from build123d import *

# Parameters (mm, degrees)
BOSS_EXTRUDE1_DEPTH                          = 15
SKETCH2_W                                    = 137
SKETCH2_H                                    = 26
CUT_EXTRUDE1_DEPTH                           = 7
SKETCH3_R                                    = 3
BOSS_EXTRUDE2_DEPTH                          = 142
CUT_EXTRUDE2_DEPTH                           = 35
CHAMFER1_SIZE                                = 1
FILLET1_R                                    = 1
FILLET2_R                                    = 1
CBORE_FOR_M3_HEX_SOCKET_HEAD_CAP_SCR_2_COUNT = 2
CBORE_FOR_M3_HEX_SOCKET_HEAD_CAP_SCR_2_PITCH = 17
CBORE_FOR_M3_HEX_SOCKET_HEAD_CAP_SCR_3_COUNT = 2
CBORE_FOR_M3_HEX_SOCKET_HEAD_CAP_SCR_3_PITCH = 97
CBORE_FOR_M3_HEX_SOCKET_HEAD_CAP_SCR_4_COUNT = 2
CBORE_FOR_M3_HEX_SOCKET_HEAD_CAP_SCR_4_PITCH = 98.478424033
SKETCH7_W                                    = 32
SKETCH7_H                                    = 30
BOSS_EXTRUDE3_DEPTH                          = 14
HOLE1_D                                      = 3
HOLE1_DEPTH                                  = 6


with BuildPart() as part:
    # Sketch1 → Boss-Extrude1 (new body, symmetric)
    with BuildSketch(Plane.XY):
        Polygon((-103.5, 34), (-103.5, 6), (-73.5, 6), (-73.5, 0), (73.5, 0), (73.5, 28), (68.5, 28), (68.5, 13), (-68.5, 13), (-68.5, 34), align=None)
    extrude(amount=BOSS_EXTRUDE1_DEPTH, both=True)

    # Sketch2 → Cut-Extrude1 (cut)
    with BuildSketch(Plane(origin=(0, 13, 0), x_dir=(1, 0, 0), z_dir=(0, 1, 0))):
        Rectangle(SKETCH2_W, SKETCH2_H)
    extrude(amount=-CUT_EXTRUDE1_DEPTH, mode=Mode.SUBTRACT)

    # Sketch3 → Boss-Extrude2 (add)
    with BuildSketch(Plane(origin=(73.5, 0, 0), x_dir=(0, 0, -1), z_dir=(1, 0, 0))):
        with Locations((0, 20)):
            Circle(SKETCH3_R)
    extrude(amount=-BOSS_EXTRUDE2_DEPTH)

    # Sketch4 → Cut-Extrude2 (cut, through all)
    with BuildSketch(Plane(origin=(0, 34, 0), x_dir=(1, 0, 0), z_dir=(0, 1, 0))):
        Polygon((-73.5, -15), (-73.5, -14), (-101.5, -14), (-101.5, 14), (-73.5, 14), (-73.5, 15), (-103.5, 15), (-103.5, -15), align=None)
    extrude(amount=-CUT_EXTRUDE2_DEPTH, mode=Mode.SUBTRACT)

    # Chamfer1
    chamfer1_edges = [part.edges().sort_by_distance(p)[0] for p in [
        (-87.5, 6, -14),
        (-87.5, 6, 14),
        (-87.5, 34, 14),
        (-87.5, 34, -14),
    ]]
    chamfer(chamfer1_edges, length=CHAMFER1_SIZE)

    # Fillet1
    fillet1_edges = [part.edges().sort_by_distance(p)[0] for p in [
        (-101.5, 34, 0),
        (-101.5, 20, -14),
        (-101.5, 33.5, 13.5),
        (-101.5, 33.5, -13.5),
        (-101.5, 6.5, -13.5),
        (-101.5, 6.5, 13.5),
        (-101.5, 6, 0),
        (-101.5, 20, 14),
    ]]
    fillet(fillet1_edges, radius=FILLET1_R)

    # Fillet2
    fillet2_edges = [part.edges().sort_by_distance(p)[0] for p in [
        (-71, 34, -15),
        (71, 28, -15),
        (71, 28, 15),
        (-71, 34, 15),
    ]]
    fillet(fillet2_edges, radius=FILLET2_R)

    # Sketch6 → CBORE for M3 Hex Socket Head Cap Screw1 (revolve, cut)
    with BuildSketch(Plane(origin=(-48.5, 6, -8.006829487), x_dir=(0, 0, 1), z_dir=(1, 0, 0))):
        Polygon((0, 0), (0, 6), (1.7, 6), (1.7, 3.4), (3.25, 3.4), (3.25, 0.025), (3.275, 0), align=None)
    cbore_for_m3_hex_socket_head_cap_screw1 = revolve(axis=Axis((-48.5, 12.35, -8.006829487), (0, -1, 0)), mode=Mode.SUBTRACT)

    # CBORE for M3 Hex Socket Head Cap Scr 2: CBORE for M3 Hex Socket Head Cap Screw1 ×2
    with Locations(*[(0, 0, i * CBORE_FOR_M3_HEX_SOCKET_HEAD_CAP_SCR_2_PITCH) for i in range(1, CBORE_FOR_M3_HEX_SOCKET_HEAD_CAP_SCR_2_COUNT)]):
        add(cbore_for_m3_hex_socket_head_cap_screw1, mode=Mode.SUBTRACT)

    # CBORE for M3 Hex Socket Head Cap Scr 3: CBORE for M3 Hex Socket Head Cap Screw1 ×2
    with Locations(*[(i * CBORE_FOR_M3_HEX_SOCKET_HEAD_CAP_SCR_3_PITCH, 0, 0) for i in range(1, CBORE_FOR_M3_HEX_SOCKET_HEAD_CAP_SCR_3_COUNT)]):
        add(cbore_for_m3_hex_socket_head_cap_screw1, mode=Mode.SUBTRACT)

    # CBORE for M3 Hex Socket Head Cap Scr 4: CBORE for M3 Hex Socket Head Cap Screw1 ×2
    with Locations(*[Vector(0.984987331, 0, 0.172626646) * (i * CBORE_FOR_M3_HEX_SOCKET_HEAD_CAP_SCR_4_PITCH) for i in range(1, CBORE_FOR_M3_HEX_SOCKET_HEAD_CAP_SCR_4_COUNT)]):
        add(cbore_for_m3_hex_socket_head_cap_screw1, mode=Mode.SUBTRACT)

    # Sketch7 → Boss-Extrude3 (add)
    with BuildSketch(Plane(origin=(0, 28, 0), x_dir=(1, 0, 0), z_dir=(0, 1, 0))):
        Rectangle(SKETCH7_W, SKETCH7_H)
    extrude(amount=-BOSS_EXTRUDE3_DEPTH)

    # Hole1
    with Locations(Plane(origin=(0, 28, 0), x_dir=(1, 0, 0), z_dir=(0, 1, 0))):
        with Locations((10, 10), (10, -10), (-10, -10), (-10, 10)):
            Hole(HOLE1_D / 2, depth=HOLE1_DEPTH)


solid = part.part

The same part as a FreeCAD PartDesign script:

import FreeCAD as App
import Part
import Sketcher
from FreeCAD import Vector
Q = App.Units.Quantity


def edges_at(feature, points):
    """Names of the edges that pass closest to the given points."""
    edges = feature.Shape.Edges
    near = lambda p: min(range(len(edges)), key=lambda i: edges[i].distToShape(Part.Vertex(*p))[0])
    return sorted({f"Edge{near(p) + 1}" for p in points})

doc = App.newDocument("Part")
body = doc.addObject("PartDesign::Body", "Body")

sketch1 = doc.addObject("Sketcher::SketchObject", "Sketch")
body.addObject(sketch1)
sketch1.AttachmentSupport = (doc.XY_Plane, [""])
sketch1.MapMode = "FlatFace"
sketch1.addGeometry([
    Part.LineSegment(Vector(-104, 34, 0), Vector(-104, 6, 0)),
    Part.LineSegment(Vector(-104, 6, 0), Vector(-74, 6, 0)),
    Part.LineSegment(Vector(-74, 6, 0), Vector(-74, 0, 0)),
    Part.LineSegment(Vector(-74, 0, 0), Vector(74, 0, 0)),
    Part.LineSegment(Vector(74, 0, 0), Vector(74, 28, 0)),
    Part.LineSegment(Vector(74, 28, 0), Vector(68, 28, 0)),
    Part.LineSegment(Vector(68, 28, 0), Vector(68, 13, 0)),
    Part.LineSegment(Vector(68, 13, 0), Vector(-68, 13, 0)),
    Part.LineSegment(Vector(-68, 13, 0), Vector(-68, 34, 0)),
    Part.LineSegment(Vector(-68, 34, 0), Vector(-104, 34, 0)),
], False)
sketch1.addConstraint([
    Sketcher.Constraint("Coincident", 0, 2, 1, 1),
    Sketcher.Constraint("Coincident", 1, 2, 2, 1),
    Sketcher.Constraint("Coincident", 2, 2, 3, 1),
    Sketcher.Constraint("Coincident", 3, 2, 4, 1),
    Sketcher.Constraint("Coincident", 4, 2, 5, 1),
    Sketcher.Constraint("Coincident", 5, 2, 6, 1),
    Sketcher.Constraint("Coincident", 6, 2, 7, 1),
    Sketcher.Constraint("Coincident", 7, 2, 8, 1),
    Sketcher.Constraint("Coincident", 8, 2, 9, 1),
    Sketcher.Constraint("Coincident", 9, 2, 0, 1),
    Sketcher.Constraint("Vertical", 0),
    Sketcher.Constraint("Horizontal", 1),
    Sketcher.Constraint("Vertical", 2),
    Sketcher.Constraint("Horizontal", 3),
    Sketcher.Constraint("Vertical", 4),
    Sketcher.Constraint("Horizontal", 5),
    Sketcher.Constraint("Vertical", 6),
    Sketcher.Constraint("Horizontal", 7),
    Sketcher.Constraint("Vertical", 8),
    Sketcher.Constraint("Horizontal", 9),
    Sketcher.Constraint("Symmetric", 2, 2, 3, 2, -1, 1),
    Sketcher.Constraint("Equal", 0, 4),
    Sketcher.Constraint("DistanceX", 1, 1, 1, 2, Q("30 mm")),
    Sketcher.Constraint("DistanceX", 3, 1, 3, 2, Q("147 mm")),
    Sketcher.Constraint("DistanceX", 5, 2, 5, 1, Q("5 mm")),
    Sketcher.Constraint("DistanceX", 7, 2, 7, 1, Q("137 mm")),
    Sketcher.Constraint("DistanceY", 0, 2, 0, 1, Q("28 mm")),
    Sketcher.Constraint("DistanceY", 2, 2, 2, 1, Q("6 mm")),
    Sketcher.Constraint("DistanceY", 6, 2, 6, 1, Q("15 mm")),
])
pad1 = doc.addObject("PartDesign::Pad", "Pad")
body.addObject(pad1)
pad1.Profile = sketch1
pad1.Length = 30
pad1.Midplane = True

sketch2 = doc.addObject("Sketcher::SketchObject", "Sketch001")
body.addObject(sketch2)
sketch2.AttachmentSupport = (doc.XZ_Plane, [""])
sketch2.MapMode = "FlatFace"
sketch2.AttachmentOffset = App.Placement(Vector(0, 0, -13), App.Rotation())
sketch2.addGeometry([
    Part.LineSegment(Vector(-68, -13, 0), Vector(-68, 13, 0)),
    Part.LineSegment(Vector(-68, 13, 0), Vector(68, 13, 0)),
    Part.LineSegment(Vector(68, 13, 0), Vector(68, -13, 0)),
    Part.LineSegment(Vector(68, -13, 0), Vector(-68, -13, 0)),
], False)
sketch2.addConstraint([
    Sketcher.Constraint("Coincident", 0, 2, 1, 1),
    Sketcher.Constraint("Coincident", 1, 2, 2, 1),
    Sketcher.Constraint("Coincident", 2, 2, 3, 1),
    Sketcher.Constraint("Coincident", 3, 2, 0, 1),
    Sketcher.Constraint("Vertical", 0),
    Sketcher.Constraint("Horizontal", 1),
    Sketcher.Constraint("Vertical", 2),
    Sketcher.Constraint("Horizontal", 3),
    Sketcher.Constraint("Symmetric", 0, 2, 2, 2, -1, 1),
    Sketcher.Constraint("DistanceX", 1, 1, 1, 2, Q("137 mm")),
    Sketcher.Constraint("DistanceY", 0, 1, 0, 2, Q("26 mm")),
])
pocket1 = doc.addObject("PartDesign::Pocket", "Pocket")
body.addObject(pocket1)
pocket1.Profile = sketch2
pocket1.Length = 7
pocket1.Reversed = True

sketch3 = doc.addObject("Sketcher::SketchObject", "Sketch002")
body.addObject(sketch3)
sketch3.AttachmentSupport = (doc.YZ_Plane, [""])
sketch3.MapMode = "FlatFace"
sketch3.AttachmentOffset = App.Placement(Vector(0, 0, 73.5), App.Rotation())
sketch3.addGeometry(Part.Circle(Vector(20, 0, 0), Vector(0, 0, 1), 3), False)
sketch3.addConstraint([
    Sketcher.Constraint("PointOnObject", 0, 3, -1),
    Sketcher.Constraint("Diameter", 0, Q("6 mm")),
    Sketcher.Constraint("DistanceX", -1, 1, 0, 3, Q("20 mm")),
])
pad2 = doc.addObject("PartDesign::Pad", "Pad001")
body.addObject(pad2)
pad2.Profile = sketch3
pad2.Length = 142
pad2.Reversed = True

sketch4 = doc.addObject("Sketcher::SketchObject", "Sketch003")
body.addObject(sketch4)
sketch4.AttachmentSupport = (doc.XZ_Plane, [""])
sketch4.MapMode = "FlatFace"
sketch4.AttachmentOffset = App.Placement(Vector(0, 0, -34), App.Rotation())
sketch4.addGeometry([
    Part.LineSegment(Vector(-73.5, 15, 0), Vector(-73.5, 14, 0)),
    Part.LineSegment(Vector(-73.5, 14, 0), Vector(-101.5, 14, 0)),
    Part.LineSegment(Vector(-101.5, 14, 0), Vector(-101.5, -14, 0)),
    Part.LineSegment(Vector(-101.5, -14, 0), Vector(-73.5, -14, 0)),
    Part.LineSegment(Vector(-73.5, -14, 0), Vector(-73.5, -15, 0)),
    Part.LineSegment(Vector(-73.5, -15, 0), Vector(-103.5, -15, 0)),
    Part.LineSegment(Vector(-103.5, -15, 0), Vector(-103.5, 15, 0)),
    Part.LineSegment(Vector(-103.5, 15, 0), Vector(-73.5, 15, 0)),
], False)
sketch4.addConstraint([
    Sketcher.Constraint("Coincident", 0, 2, 1, 1),
    Sketcher.Constraint("Coincident", 1, 2, 2, 1),
    Sketcher.Constraint("Coincident", 2, 2, 3, 1),
    Sketcher.Constraint("Coincident", 3, 2, 4, 1),
    Sketcher.Constraint("Coincident", 4, 2, 5, 1),
    Sketcher.Constraint("Coincident", 5, 2, 6, 1),
    Sketcher.Constraint("Coincident", 6, 2, 7, 1),
    Sketcher.Constraint("Coincident", 7, 2, 0, 1),
    Sketcher.Constraint("Vertical", 0),
    Sketcher.Constraint("Horizontal", 1),
    Sketcher.Constraint("Vertical", 2),
    Sketcher.Constraint("Horizontal", 3),
    Sketcher.Constraint("Vertical", 4),
    Sketcher.Constraint("Horizontal", 5),
    Sketcher.Constraint("Vertical", 6),
    Sketcher.Constraint("Horizontal", 7),
    Sketcher.Constraint("Symmetric", 0, 2, 3, 2, -1),
    Sketcher.Constraint("Equal", 3, 2),
    Sketcher.Constraint("Equal", 0, 4),
    Sketcher.Constraint("Equal", 7, 6),
    Sketcher.Constraint("DistanceX", 1, 2, 1, 1, Q("28 mm")),
    Sketcher.Constraint("DistanceX", 5, 2, 5, 1, Q("30 mm")),
    Sketcher.Constraint("DistanceX", 0, 2, -1, 1, Q("73.5 mm")),
])
pocket2 = doc.addObject("PartDesign::Pocket", "Pocket001")
body.addObject(pocket2)
pocket2.Profile = sketch4
pocket2.Type = "ThroughAll"
pocket2.Reversed = True
doc.recompute()

chamfer = doc.addObject("PartDesign::Chamfer", "Chamfer")
body.addObject(chamfer)
chamfer.Base = (pocket2, edges_at(pocket2, [
    (-87.5, 6, -14),
    (-87.5, 6, 14),
    (-87.5, 34, 14),
    (-87.5, 34, -14),
]))
chamfer.Size = 1
doc.recompute()

fillet = doc.addObject("PartDesign::Fillet", "Fillet")
body.addObject(fillet)
fillet.Base = (chamfer, edges_at(chamfer, [
    (-101.5, 34, 0),
    (-101.5, 20, -14),
    (-101.5, 33.5, 13.5),
    (-101.5, 33.5, -13.5),
    (-101.5, 6.5, -13.5),
    (-101.5, 6.5, 13.5),
    (-101.5, 6, 0),
    (-101.5, 20, 14),
]))
fillet.Radius = 1
doc.recompute()

fillet2 = doc.addObject("PartDesign::Fillet", "Fillet001")
body.addObject(fillet2)
fillet2.Base = (fillet, edges_at(fillet, [
    (-71, 34, -15),
    (71, 28, -15),
    (71, 28, 15),
    (-71, 34, 15),
]))
fillet2.Radius = 1

sketch5 = doc.addObject("Sketcher::SketchObject", "Sketch004")
body.addObject(sketch5)
sketch5.AttachmentSupport = (doc.YZ_Plane, [""])
sketch5.MapMode = "FlatFace"
sketch5.AttachmentOffset = App.Placement(Vector(0, 0, -48.5), App.Rotation())
sketch5.addGeometry([
    Part.LineSegment(Vector(0, -8.007, 0), Vector(6, -8.007, 0)),
    Part.LineSegment(Vector(6, -8.007, 0), Vector(6, -4.732, 0)),
    Part.LineSegment(Vector(6, -4.732, 0), Vector(5.975, -4.757, 0)),
    Part.LineSegment(Vector(5.975, -4.757, 0), Vector(2.6, -4.757, 0)),
    Part.LineSegment(Vector(2.6, -4.757, 0), Vector(2.6, -6.307, 0)),
    Part.LineSegment(Vector(2.6, -6.307, 0), Vector(0, -6.307, 0)),
    Part.LineSegment(Vector(0, -6.307, 0), Vector(0, -8.007, 0)),
], False)
sketch5.addGeometry(Part.LineSegment(Vector(6, -8.007, 0), Vector(0, -8.007, 0)), True)
sketch5.addConstraint([
    Sketcher.Constraint("Coincident", 0, 2, 1, 1),
    Sketcher.Constraint("Coincident", 1, 2, 2, 1),
    Sketcher.Constraint("Coincident", 2, 2, 3, 1),
    Sketcher.Constraint("Coincident", 3, 2, 4, 1),
    Sketcher.Constraint("Coincident", 4, 2, 5, 1),
    Sketcher.Constraint("Coincident", 5, 2, 6, 1),
    Sketcher.Constraint("Coincident", 6, 2, 0, 1),
    Sketcher.Constraint("Horizontal", 0),
    Sketcher.Constraint("Vertical", 1),
    Sketcher.Constraint("Horizontal", 3),
    Sketcher.Constraint("Vertical", 4),
    Sketcher.Constraint("Horizontal", 5),
    Sketcher.Constraint("Vertical", 6),
    Sketcher.Constraint("Horizontal", 7),
    Sketcher.Constraint("Coincident", 7, 1, 0, 2),
    Sketcher.Constraint("PointOnObject", 5, 2, -2),
    Sketcher.Constraint("PointOnObject", 7, 2, -2),
    Sketcher.Constraint("DistanceX", 0, 1, 0, 2, Q("6 mm")),
    Sketcher.Constraint("Angle", 2, Q("-135 deg")),
    Sketcher.Constraint("DistanceX", 5, 2, 5, 1, Q("2.6 mm")),
    Sketcher.Constraint("DistanceY", 6, 2, 6, 1, Q("1.7 mm")),
    Sketcher.Constraint("DistanceY", 4, 2, 4, 1, Q("1.55 mm")),
    Sketcher.Constraint("DistanceX", 3, 2, 3, 1, Q("3.375 mm")),
    Sketcher.Constraint("DistanceY", 0, 2, -1, 1, Q("8.006829 mm")),
])
groove = doc.addObject("PartDesign::Groove", "Groove")
body.addObject(groove)
groove.Profile = sketch5
groove.ReferenceAxis = (sketch5, ["Axis0"])
groove.Angle = 360
doc.recompute()

linearpattern = doc.addObject("PartDesign::LinearPattern", "LinearPattern")
body.addObject(linearpattern)
linearpattern.Originals = [groove]
linearpattern.Direction = (doc.Z_Axis, [""])
linearpattern.Mode = "offset"
linearpattern.Offset = 17
linearpattern.Occurrences = 2
body.Tip = linearpattern
doc.recompute()

linearpattern2 = doc.addObject("PartDesign::LinearPattern", "LinearPattern001")
body.addObject(linearpattern2)
linearpattern2.Originals = [groove]
linearpattern2.Direction = (doc.X_Axis, [""])
linearpattern2.Mode = "offset"
linearpattern2.Offset = 97
linearpattern2.Occurrences = 2
body.Tip = linearpattern2
doc.recompute()

datumline = doc.addObject("PartDesign::Line", "DatumLine")
body.addObject(datumline)
datumline.Placement = App.Placement(Vector(0, 0, 0), App.Rotation(Vector(0, 0, 1), Vector(0.98498733, 0, 0.172626646)))
linearpattern3 = doc.addObject("PartDesign::LinearPattern", "LinearPattern002")
body.addObject(linearpattern3)
linearpattern3.Originals = [groove]
linearpattern3.Direction = (datumline, [""])
linearpattern3.Mode = "offset"
linearpattern3.Offset = 98.478424
linearpattern3.Occurrences = 2
body.Tip = linearpattern3

sketch6 = doc.addObject("Sketcher::SketchObject", "Sketch005")
body.addObject(sketch6)
sketch6.AttachmentSupport = (doc.XZ_Plane, [""])
sketch6.MapMode = "FlatFace"
sketch6.AttachmentOffset = App.Placement(Vector(0, 0, -28), App.Rotation())
sketch6.addGeometry([
    Part.LineSegment(Vector(-16, -15, 0), Vector(-16, 15, 0)),
    Part.LineSegment(Vector(-16, 15, 0), Vector(16, 15, 0)),
    Part.LineSegment(Vector(16, 15, 0), Vector(16, -15, 0)),
    Part.LineSegment(Vector(16, -15, 0), Vector(-16, -15, 0)),
], False)
sketch6.addConstraint([
    Sketcher.Constraint("Coincident", 0, 2, 1, 1),
    Sketcher.Constraint("Coincident", 1, 2, 2, 1),
    Sketcher.Constraint("Coincident", 2, 2, 3, 1),
    Sketcher.Constraint("Coincident", 3, 2, 0, 1),
    Sketcher.Constraint("Vertical", 0),
    Sketcher.Constraint("Horizontal", 1),
    Sketcher.Constraint("Vertical", 2),
    Sketcher.Constraint("Horizontal", 3),
    Sketcher.Constraint("Symmetric", 0, 2, 2, 2, -1, 1),
    Sketcher.Constraint("DistanceX", 1, 1, 1, 2, Q("32 mm")),
    Sketcher.Constraint("DistanceY", 0, 1, 0, 2, Q("30 mm")),
])
pad3 = doc.addObject("PartDesign::Pad", "Pad002")
body.addObject(pad3)
pad3.Profile = sketch6
pad3.Length = 14

sketch7 = doc.addObject("Sketcher::SketchObject", "Sketch006")
body.addObject(sketch7)
sketch7.AttachmentSupport = (doc.XZ_Plane, [""])
sketch7.MapMode = "FlatFace"
sketch7.AttachmentOffset = App.Placement(Vector(0, 0, -28), App.Rotation())
sketch7.addGeometry([
    Part.Circle(Vector(10, -10, 0), Vector(0, 0, 1), 1.5),
    Part.Circle(Vector(10, 10, 0), Vector(0, 0, 1), 1.5),
    Part.Circle(Vector(-10, 10, 0), Vector(0, 0, 1), 1.5),
    Part.Circle(Vector(-10, -10, 0), Vector(0, 0, 1), 1.5),
], False)
sketch7.addConstraint([
    Sketcher.Constraint("Equal", 0, 1),
    Sketcher.Constraint("Equal", 1, 2),
    Sketcher.Constraint("Equal", 2, 3),
    Sketcher.Constraint("Symmetric", 0, 3, 2, 3, -1, 1),
    Sketcher.Constraint("Symmetric", 1, 3, 3, 3, -1, 1),
    Sketcher.Constraint("Symmetric", 1, 3, 2, 3, -2),
    Sketcher.Constraint("Diameter", 0, Q("3 mm")),
    Sketcher.Constraint("DistanceX", -1, 1, 0, 3, Q("10 mm")),
    Sketcher.Constraint("DistanceY", 0, 3, -1, 1, Q("10 mm")),
])
doc.recompute()
hole = doc.addObject("PartDesign::Hole", "Hole")
body.addObject(hole)
hole.Profile = sketch7
hole.ThreadType = "None"
hole.Diameter = 3
hole.DepthType = "Dimension"
hole.Depth = 6
hole.DrillPoint = "Flat"
hole.Reversed = True

doc.recompute()
